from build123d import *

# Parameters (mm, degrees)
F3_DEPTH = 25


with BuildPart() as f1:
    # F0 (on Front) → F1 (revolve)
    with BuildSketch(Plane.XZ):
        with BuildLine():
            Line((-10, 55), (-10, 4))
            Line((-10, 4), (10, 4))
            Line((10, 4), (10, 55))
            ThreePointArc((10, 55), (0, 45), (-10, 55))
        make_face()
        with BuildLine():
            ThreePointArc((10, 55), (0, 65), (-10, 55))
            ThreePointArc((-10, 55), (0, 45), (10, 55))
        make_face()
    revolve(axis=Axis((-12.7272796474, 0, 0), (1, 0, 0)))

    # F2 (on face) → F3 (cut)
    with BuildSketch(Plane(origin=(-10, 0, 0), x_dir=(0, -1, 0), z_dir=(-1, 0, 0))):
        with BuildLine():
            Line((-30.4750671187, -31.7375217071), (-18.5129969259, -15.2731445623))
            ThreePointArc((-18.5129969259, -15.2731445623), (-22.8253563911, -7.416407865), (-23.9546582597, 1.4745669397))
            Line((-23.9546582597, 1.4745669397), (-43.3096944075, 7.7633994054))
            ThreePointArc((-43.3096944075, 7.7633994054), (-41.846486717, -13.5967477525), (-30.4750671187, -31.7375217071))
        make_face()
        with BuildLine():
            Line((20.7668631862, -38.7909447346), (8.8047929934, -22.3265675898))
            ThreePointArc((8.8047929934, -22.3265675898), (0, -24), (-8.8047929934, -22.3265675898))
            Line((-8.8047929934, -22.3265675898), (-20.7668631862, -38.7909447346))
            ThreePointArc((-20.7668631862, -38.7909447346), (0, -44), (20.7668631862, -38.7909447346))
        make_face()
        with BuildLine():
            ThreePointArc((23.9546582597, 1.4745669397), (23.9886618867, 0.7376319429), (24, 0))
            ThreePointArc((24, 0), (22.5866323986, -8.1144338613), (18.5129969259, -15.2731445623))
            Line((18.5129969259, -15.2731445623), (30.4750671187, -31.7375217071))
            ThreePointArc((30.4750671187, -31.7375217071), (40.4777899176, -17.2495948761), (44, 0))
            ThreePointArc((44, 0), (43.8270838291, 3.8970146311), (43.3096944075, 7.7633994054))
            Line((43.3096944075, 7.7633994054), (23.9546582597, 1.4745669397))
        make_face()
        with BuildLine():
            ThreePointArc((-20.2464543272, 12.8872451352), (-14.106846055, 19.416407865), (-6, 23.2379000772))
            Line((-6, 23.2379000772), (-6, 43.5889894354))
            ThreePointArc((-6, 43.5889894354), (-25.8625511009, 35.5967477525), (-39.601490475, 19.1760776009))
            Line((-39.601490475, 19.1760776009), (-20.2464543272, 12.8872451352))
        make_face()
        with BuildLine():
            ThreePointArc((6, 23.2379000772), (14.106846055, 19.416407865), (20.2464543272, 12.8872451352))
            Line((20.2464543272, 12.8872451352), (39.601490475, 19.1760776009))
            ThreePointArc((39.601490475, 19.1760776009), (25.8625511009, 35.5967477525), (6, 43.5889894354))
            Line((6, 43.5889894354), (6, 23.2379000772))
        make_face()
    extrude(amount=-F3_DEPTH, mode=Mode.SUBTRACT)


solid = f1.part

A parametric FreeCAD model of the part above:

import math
import FreeCAD as App
import Part
import Sketcher
Q = App.Units.Quantity

doc = App.newDocument("Part")
body = doc.addObject("PartDesign::Body", "Body")

sketch1 = body.newObject("Sketcher::SketchObject", "Sketch")
sketch1.AttachmentSupport = (doc.getObject("XZ_Plane"), [""])
sketch1.MapMode = "FlatFace"
sketch1.addGeometry(Part.LineSegment(App.Vector(-10, 55, 0), App.Vector(-10, 4, 0)), False)
sketch1.addGeometry(Part.LineSegment(App.Vector(-10, 4, 0), App.Vector(10, 4, 0)), False)
sketch1.addGeometry(Part.LineSegment(App.Vector(10, 4, 0), App.Vector(10, 55, 0)), False)
sketch1.addGeometry(Part.ArcOfCircle(Part.Circle(App.Vector(0, 55, 0), App.Vector(0, 0, 1), 10), math.radians(0), math.radians(180)), False)
sketch1.addConstraint(Sketcher.Constraint("Coincident", 0, 2, 1, 1))
sketch1.addConstraint(Sketcher.Constraint("Coincident", 1, 2, 2, 1))
sketch1.addConstraint(Sketcher.Constraint("Tangent", 2, 2, 3, 1))
sketch1.addConstraint(Sketcher.Constraint("Tangent", 3, 2, 0, 1))
sketch1.addConstraint(Sketcher.Constraint("Vertical", 0))
sketch1.addConstraint(Sketcher.Constraint("Horizontal", 1))
sketch1.addConstraint(Sketcher.Constraint("Vertical", 2))
sketch1.addConstraint(Sketcher.Constraint("PointOnObject", 3, 3, -2))
sketch1.addConstraint(Sketcher.Constraint("Radius", 3, 10.0))
sketch1.addConstraint(Sketcher.Constraint("DistanceY", 0, 2, 0, 1, 51.0))
sketch1.addConstraint(Sketcher.Constraint("DistanceY", -1, 1, 3, 3, 55.0))
revolution = body.newObject("PartDesign::Revolution", "Revolution")
revolution.Profile = sketch1
revolution.ReferenceAxis = (sketch1, ["H_Axis"])
revolution.Angle = 360

sketch2 = body.newObject("Sketcher::SketchObject", "Sketch001")
sketch2.AttachmentSupport = (doc.getObject("YZ_Plane"), [""])
sketch2.MapMode = "FlatFace"
sketch2.AttachmentOffset = App.Placement(App.Vector(0, 0, -10), App.Rotation())
sketch2.addGeometry(Part.LineSegment(App.Vector(30.5, -31.7, 0), App.Vector(18.5, -15.3, 0)), False)
sketch2.addGeometry(Part.ArcOfCircle(Part.Circle(App.Vector(0, 0, 0), App.Vector(0, 0, 1), 24), math.radians(-40), math.radians(4)), False)
sketch2.addGeometry(Part.LineSegment(App.Vector(24, 1.5, 0), App.Vector(43.3, 7.8, 0)), False)
sketch2.addGeometry(Part.ArcOfCircle(Part.Circle(App.Vector(0, 0, 0), App.Vector(0, 0, 1), 44), math.radians(-46), math.radians(10)), False)
sketch2.addGeometry(Part.LineSegment(App.Vector(-20.8, -38.8, 0), App.Vector(-8.8, -22.3, 0)), False)
sketch2.addGeometry(Part.ArcOfCircle(Part.Circle(App.Vector(0, 0, 0), App.Vector(0, 0, 1), 24), math.radians(-112), math.radians(-68)), False)
sketch2.addGeometry(Part.LineSegment(App.Vector(8.8, -22.3, 0), App.Vector(20.8, -38.8, 0)), False)
sketch2.addGeometry(Part.ArcOfCircle(Part.Circle(App.Vector(0, 0, 0), App.Vector(0, 0, 1), 44), math.radians(-118), math.radians(-62)), False)
sketch2.addGeometry(Part.ArcOfCircle(Part.Circle(App.Vector(0, 0, 0), App.Vector(0, 0, 1), 24), math.radians(176.48), math.radians(180)), False)
sketch2.addGeometry(Part.ArcOfCircle(Part.Circle(App.Vector(0, 0, 0), App.Vector(0, 0, 1), 24), math.radians(180), math.radians(220)), False)
sketch2.addGeometry(Part.LineSegment(App.Vector(-18.5, -15.3, 0), App.Vector(-30.5, -31.7, 0)), False)
sketch2.addGeometry(Part.ArcOfCircle(Part.Circle(App.Vector(0, 0, 0), App.Vector(0, 0, 1), 44), math.radians(180), math.radians(226)), False)
sketch2.addGeometry(Part.ArcOfCircle(Part.Circle(App.Vector(0, 0, 0), App.Vector(0, 0, 1), 44), math.radians(169.84), math.radians(180)), False)
sketch2.addGeometry(Part.LineSegment(App.Vector(-43.3, 7.8, 0), App.Vector(-24, 1.5, 0)), False)
sketch2.addGeometry(Part.ArcOfCircle(Part.Circle(App.Vector(0, 0, 0), App.Vector(0, 0, 1), 24), math.radians(32), math.radians(76)), False)
sketch2.addGeometry(Part.LineSegment(App.Vector(6, 23.2, 0), App.Vector(6, 43.6, 0)), False)
sketch2.addGeometry(Part.ArcOfCircle(Part.Circle(App.Vector(0, 0, 0), App.Vector(0, 0, 1), 44), math.radians(26), math.radians(82)), False)
sketch2.addGeometry(Part.LineSegment(App.Vector(39.6, 19.2, 0), App.Vector(20.2, 12.9, 0)), False)
sketch2.addGeometry(Part.ArcOfCircle(Part.Circle(App.Vector(0, 0, 0), App.Vector(0, 0, 1), 24), math.radians(104), math.radians(148)), False)
sketch2.addGeometry(Part.LineSegment(App.Vector(-20.2, 12.9, 0), App.Vector(-39.6, 19.2, 0)), False)
sketch2.addGeometry(Part.ArcOfCircle(Part.Circle(App.Vector(0, 0, 0), App.Vector(0, 0, 1), 44), math.radians(98), math.radians(154)), False)
sketch2.addGeometry(Part.LineSegment(App.Vector(-6, 43.6, 0), App.Vector(-6, 23.2, 0)), False)
sketch2.addConstraint(Sketcher.Constraint("Coincident", 0, 2, 1, 1))
sketch2.addConstraint(Sketcher.Constraint("Coincident", 1, 2, 2, 1))
sketch2.addConstraint(Sketcher.Constraint("Coincident", 2, 2, 3, 2))
sketch2.addConstraint(Sketcher.Constraint("Coincident", 3, 1, 0, 1))
sketch2.addConstraint(Sketcher.Constraint("Coincident", 4, 2, 5, 1))
sketch2.addConstraint(Sketcher.Constraint("Coincident", 5, 2, 6, 1))
sketch2.addConstraint(Sketcher.Constraint("Coincident", 6, 2, 7, 2))
sketch2.addConstraint(Sketcher.Constraint("Coincident", 7, 1, 4, 1))
sketch2.addConstraint(Sketcher.Constraint("Tangent", 8, 2, 9, 1))
sketch2.addConstraint(Sketcher.Constraint("Coincident", 9, 2, 10, 1))
sketch2.addConstraint(Sketcher.Constraint("Coincident", 10, 2, 11, 2))
sketch2.addConstraint(Sketcher.Constraint("Tangent", 11, 1, 12, 2))
sketch2.addConstraint(Sketcher.Constraint("Coincident", 12, 1, 13, 1))
sketch2.addConstraint(Sketcher.Constraint("Coincident", 13, 2, 8, 1))
sketch2.addConstraint(Sketcher.Constraint("Coincident", 14, 2, 15, 1))
sketch2.addConstraint(Sketcher.Constraint("Coincident", 15, 2, 16, 2))
sketch2.addConstraint(Sketcher.Constraint("Coincident", 16, 1, 17, 1))
sketch2.addConstraint(Sketcher.Constraint("Coincident", 17, 2, 14, 1))
sketch2.addConstraint(Sketcher.Constraint("Coincident", 18, 2, 19, 1))
sketch2.addConstraint(Sketcher.Constraint("Coincident", 19, 2, 20, 2))
sketch2.addConstraint(Sketcher.Constraint("Coincident", 20, 1, 21, 1))
sketch2.addConstraint(Sketcher.Constraint("Coincident", 21, 2, 18, 1))
sketch2.addConstraint(Sketcher.Constraint("Vertical", 15))
sketch2.addConstraint(Sketcher.Constraint("Vertical", 21))
sketch2.addConstraint(Sketcher.Constraint("Coincident", 1, 3, -1, 1))
sketch2.addConstraint(Sketcher.Constraint("Coincident", 3, 3, -1, 1))
sketch2.addConstraint(Sketcher.Constraint("Coincident", 5, 3, -1, 1))
sketch2.addConstraint(Sketcher.Constraint("Coincident", 7, 3, -1, 1))
sketch2.addConstraint(Sketcher.Constraint("Coincident", 8, 3, -1, 1))
sketch2.addConstraint(Sketcher.Constraint("Coincident", 11, 3, -1, 1))
sketch2.addConstraint(Sketcher.Constraint("Coincident", 14, 3, -1, 1))
sketch2.addConstraint(Sketcher.Constraint("Coincident", 16, 3, -1, 1))
sketch2.addConstraint(Sketcher.Constraint("Coincident", 18, 3, -1, 1))
sketch2.addConstraint(Sketcher.Constraint("Coincident", 20, 3, -1, 1))
sketch2.addConstraint(Sketcher.Constraint("Equal", 1, 5))
sketch2.addConstraint(Sketcher.Constraint("Equal", 3, 7))
sketch2.addConstraint(Sketcher.Constraint("Equal", 5, 8))
sketch2.addConstraint(Sketcher.Constraint("Equal", 8, 9))
sketch2.addConstraint(Sketcher.Constraint("Equal", 7, 11))
sketch2.addConstraint(Sketcher.Constraint("Equal", 11, 12))
sketch2.addConstraint(Sketcher.Constraint("Equal", 9, 14))
sketch2.addConstraint(Sketcher.Constraint("Equal", 12, 16))
sketch2.addConstraint(Sketcher.Constraint("Equal", 14, 18))
sketch2.addConstraint(Sketcher.Constraint("Equal", 16, 20))
sketch2.addConstraint(Sketcher.Constraint("PointOnObject", 8, 2, -1))
sketch2.addConstraint(Sketcher.Constraint("PointOnObject", 11, 1, -1))
sketch2.addConstraint(Sketcher.Constraint("Parallel", 0, 6))
sketch2.addConstraint(Sketcher.Constraint("Parallel", 4, 10))
sketch2.addConstraint(Sketcher.Constraint("Parallel", 2, 17))
sketch2.addConstraint(Sketcher.Constraint("Parallel", 13, 19))
sketch2.addConstraint(Sketcher.Constraint("Horizontal", 4, 2, 5, 2))
sketch2.addConstraint(Sketcher.Constraint("Horizontal", 6, 2, 7, 1))
sketch2.addConstraint(Sketcher.Constraint("Horizontal", 0, 2, 9, 2))
sketch2.addConstraint(Sketcher.Constraint("Horizontal", 2, 2, 12, 1))
sketch2.addConstraint(Sketcher.Constraint("Horizontal", 1, 2, 13, 2))
sketch2.addConstraint(Sketcher.Constraint("Horizontal", 17, 2, 18, 2))
sketch2.addConstraint(Sketcher.Constraint("Horizontal", 15, 2, 20, 1))
sketch2.addConstraint(Sketcher.Constraint("Equal", 0, 2))
sketch2.addConstraint(Sketcher.Constraint("Equal", 2, 4))
sketch2.addConstraint(Sketcher.Constraint("Equal", 13, 17))
sketch2.addConstraint(Sketcher.Constraint("Radius", 1, 24.0))
sketch2.addConstraint(Sketcher.Constraint("Radius", 3, 44.0))
sketch2.addConstraint(Sketcher.Constraint("Angle", 0, Q("126 deg")))
sketch2.addConstraint(Sketcher.Constraint("Angle", 2, Q("18 deg")))
sketch2.addConstraint(Sketcher.Constraint("DistanceX", -1, 1, 14, 2, 6.0))
sketch2.addConstraint(Sketcher.Constraint("DistanceY", -1, 1, 2, 2, 7.763399))
pocket1 = body.newObject("PartDesign::Pocket", "Pocket")
pocket1.Profile = sketch2
pocket1.Length = 25
pocket1.Reversed = True

doc.recompute()
